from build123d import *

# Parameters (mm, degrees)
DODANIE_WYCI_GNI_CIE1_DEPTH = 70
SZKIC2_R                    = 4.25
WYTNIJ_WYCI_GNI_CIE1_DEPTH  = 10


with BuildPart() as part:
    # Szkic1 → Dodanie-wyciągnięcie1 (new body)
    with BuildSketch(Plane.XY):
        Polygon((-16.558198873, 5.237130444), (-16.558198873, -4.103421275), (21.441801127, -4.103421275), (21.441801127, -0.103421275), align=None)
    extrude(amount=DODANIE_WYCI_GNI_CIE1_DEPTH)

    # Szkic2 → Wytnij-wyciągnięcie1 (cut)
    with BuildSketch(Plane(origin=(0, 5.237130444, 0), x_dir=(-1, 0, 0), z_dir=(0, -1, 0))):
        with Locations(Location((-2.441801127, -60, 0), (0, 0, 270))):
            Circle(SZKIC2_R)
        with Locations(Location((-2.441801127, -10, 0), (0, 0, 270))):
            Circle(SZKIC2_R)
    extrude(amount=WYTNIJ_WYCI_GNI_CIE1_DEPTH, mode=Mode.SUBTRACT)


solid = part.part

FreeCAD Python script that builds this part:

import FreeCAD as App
import Part
import Sketcher

V = App.Vector
Q = App.Units.Quantity

doc = App.newDocument("Part")
body = doc.addObject("PartDesign::Body", "Body")

# Sketch on XY plane
sketch1 = body.newObject("Sketcher::SketchObject", "Sketch")
sketch1.AttachmentSupport = (doc.getObject("XY_Plane"), [""])
sketch1.MapMode = "FlatFace"
sketch1.addGeometry(Part.LineSegment(V(-16.6, 5.2, 0), V(-16.6, -4.1, 0)), False)
sketch1.addGeometry(Part.LineSegment(V(-16.6, -4.1, 0), V(21.4, -4.1, 0)), False)
sketch1.addGeometry(Part.LineSegment(V(21.4, -4.1, 0), V(21.4, -0.1, 0)), False)
sketch1.addGeometry(Part.LineSegment(V(21.4, -0.1, 0), V(-16.6, 5.2, 0)), False)
sketch1.addConstraint(Sketcher.Constraint("Coincident", 0, 2, 1, 1))
sketch1.addConstraint(Sketcher.Constraint("Coincident", 1, 2, 2, 1))
sketch1.addConstraint(Sketcher.Constraint("Coincident", 2, 2, 3, 1))
sketch1.addConstraint(Sketcher.Constraint("Coincident", 3, 2, 0, 1))
sketch1.addConstraint(Sketcher.Constraint("Vertical", 0))
sketch1.addConstraint(Sketcher.Constraint("Horizontal", 1))
sketch1.addConstraint(Sketcher.Constraint("Vertical", 2))
sketch1.addConstraint(Sketcher.Constraint("DistanceX", 1, 1, 1, 2, 38.0))
sketch1.addConstraint(Sketcher.Constraint("DistanceY", 2, 1, 2, 2, 4.0))
sketch1.addConstraint(Sketcher.Constraint("Angle", 3, Q("172 deg")))
sketch1.addConstraint(Sketcher.Constraint("DistanceX", 0, 2, -1, 1, 16.558199))
sketch1.addConstraint(Sketcher.Constraint("DistanceY", 0, 2, -1, 1, 4.103421))
pad1 = body.newObject("PartDesign::Pad", "Pad")
pad1.Profile = sketch1
pad1.Length = 70

# Sketch on XZ plane
sketch2 = body.newObject("Sketcher::SketchObject", "Sketch001")
sketch2.AttachmentSupport = (doc.getObject("XZ_Plane"), [""])
sketch2.MapMode = "FlatFace"
sketch2.AttachmentOffset = App.Placement(V(0, 0, -5.23713), App.Rotation())
sketch2.addGeometry(Part.Circle(V(2.4, 60, 0), V(0, 0, 1), 4.2), False)
sketch2.addGeometry(Part.Circle(V(2.4, 10, 0), V(0, 0, 1), 4.2), False)
sketch2.addConstraint(Sketcher.Constraint("Equal", 0, 1))
sketch2.addConstraint(Sketcher.Constraint("Vertical", 0, 3, 1, 3))
sketch2.addConstraint(Sketcher.Constraint("Diameter", 0, 8.5))
sketch2.addConstraint(Sketcher.Constraint("DistanceY", -1, 1, 0, 3, 60.0))
sketch2.addConstraint(Sketcher.Constraint("DistanceY", -1, 1, 1, 3, 10.0))
sketch2.addConstraint(Sketcher.Constraint("DistanceX", -1, 1, 0, 3, 2.441801))
pocket1 = body.newObject("PartDesign::Pocket", "Pocket")
pocket1.Profile = sketch2
pocket1.Length = 10
pocket1.Reversed = True

doc.recompute()
